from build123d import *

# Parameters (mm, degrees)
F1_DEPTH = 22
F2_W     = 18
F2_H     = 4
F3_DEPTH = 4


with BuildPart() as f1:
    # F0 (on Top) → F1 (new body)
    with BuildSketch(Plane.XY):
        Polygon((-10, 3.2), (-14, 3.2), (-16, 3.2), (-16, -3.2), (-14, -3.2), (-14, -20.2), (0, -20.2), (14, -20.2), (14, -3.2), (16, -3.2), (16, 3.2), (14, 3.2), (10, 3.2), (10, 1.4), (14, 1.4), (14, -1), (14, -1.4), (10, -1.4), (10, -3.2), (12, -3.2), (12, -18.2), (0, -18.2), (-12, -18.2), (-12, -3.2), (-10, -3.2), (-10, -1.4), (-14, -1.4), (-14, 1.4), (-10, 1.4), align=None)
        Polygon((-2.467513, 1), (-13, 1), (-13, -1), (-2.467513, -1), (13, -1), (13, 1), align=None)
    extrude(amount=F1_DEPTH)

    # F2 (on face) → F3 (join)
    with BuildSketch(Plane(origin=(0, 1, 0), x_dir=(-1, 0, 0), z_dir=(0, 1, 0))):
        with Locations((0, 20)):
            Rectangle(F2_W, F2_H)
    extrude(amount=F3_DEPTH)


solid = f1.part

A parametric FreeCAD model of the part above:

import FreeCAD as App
import Part
import Sketcher
from FreeCAD import Vector
Q = App.Units.Quantity

doc = App.newDocument("Part")
body = doc.addObject("PartDesign::Body", "Body")
body.AllowCompound = True

# Sketch on XY plane
sketch1 = body.newObject("Sketcher::SketchObject", "Sketch")
sketch1.AttachmentSupport = (doc.getObject("XY_Plane"), [""])
sketch1.MapMode = "FlatFace"
sketch1.addGeometry([
    Part.LineSegment(Vector(-10, 3.2, 0), Vector(-16, 3.2, 0)),  # 0
    Part.LineSegment(Vector(-16, 3.2, 0), Vector(-16, -3.2, 0)),  # 1
    Part.LineSegment(Vector(-16, -3.2, 0), Vector(-14, -3.2, 0)),  # 2
    Part.LineSegment(Vector(-14, -3.2, 0), Vector(-14, -20.2, 0)),  # 3
    Part.LineSegment(Vector(-14, -20.2, 0), Vector(14, -20.2, 0)),  # 4
    Part.LineSegment(Vector(14, -20.2, 0), Vector(14, -3.2, 0)),  # 5
    Part.LineSegment(Vector(14, -3.2, 0), Vector(16, -3.2, 0)),  # 6
    Part.LineSegment(Vector(16, -3.2, 0), Vector(16, 3.2, 0)),  # 7
    Part.LineSegment(Vector(16, 3.2, 0), Vector(10, 3.2, 0)),  # 8
    Part.LineSegment(Vector(10, 3.2, 0), Vector(10, 1.4, 0)),  # 9
    Part.LineSegment(Vector(10, 1.4, 0), Vector(14, 1.4, 0)),  # 10
    Part.LineSegment(Vector(14, 1.4, 0), Vector(14, -1.4, 0)),  # 11
    Part.LineSegment(Vector(14, -1.4, 0), Vector(10, -1.4, 0)),  # 12
    Part.LineSegment(Vector(10, -1.4, 0), Vector(10, -3.2, 0)),  # 13
    Part.LineSegment(Vector(10, -3.2, 0), Vector(12, -3.2, 0)),  # 14
    Part.LineSegment(Vector(12, -3.2, 0), Vector(12, -18.2, 0)),  # 15
    Part.LineSegment(Vector(12, -18.2, 0), Vector(-12, -18.2, 0)),  # 16
    Part.LineSegment(Vector(-12, -18.2, 0), Vector(-12, -3.2, 0)),  # 17
    Part.LineSegment(Vector(-12, -3.2, 0), Vector(-10, -3.2, 0)),  # 18
    Part.LineSegment(Vector(-10, -3.2, 0), Vector(-10, -1.4, 0)),  # 19
    Part.LineSegment(Vector(-10, -1.4, 0), Vector(-14, -1.4, 0)),  # 20
    Part.LineSegment(Vector(-14, -1.4, 0), Vector(-14, 1.4, 0)),  # 21
    Part.LineSegment(Vector(-14, 1.4, 0), Vector(-10, 1.4, 0)),  # 22
    Part.LineSegment(Vector(-10, 1.4, 0), Vector(-10, 3.2, 0)),  # 23
    Part.LineSegment(Vector(-13, 1, 0), Vector(-13, -1, 0)),  # 24
    Part.LineSegment(Vector(-13, -1, 0), Vector(13, -1, 0)),  # 25
    Part.LineSegment(Vector(13, -1, 0), Vector(13, 1, 0)),  # 26
    Part.LineSegment(Vector(13, 1, 0), Vector(-13, 1, 0)),  # 27
], False)
sketch1.addConstraint([
    Sketcher.Constraint("Coincident", 0, 2, 1, 1),
    Sketcher.Constraint("Coincident", 1, 2, 2, 1),
    Sketcher.Constraint("Coincident", 2, 2, 3, 1),
    Sketcher.Constraint("Coincident", 3, 2, 4, 1),
    Sketcher.Constraint("Coincident", 4, 2, 5, 1),
    Sketcher.Constraint("Coincident", 5, 2, 6, 1),
    Sketcher.Constraint("Coincident", 6, 2, 7, 1),
    Sketcher.Constraint("Coincident", 7, 2, 8, 1),
    Sketcher.Constraint("Coincident", 8, 2, 9, 1),
    Sketcher.Constraint("Coincident", 9, 2, 10, 1),
    Sketcher.Constraint("Coincident", 10, 2, 11, 1),
    Sketcher.Constraint("Coincident", 11, 2, 12, 1),
    Sketcher.Constraint("Coincident", 12, 2, 13, 1),
    Sketcher.Constraint("Coincident", 13, 2, 14, 1),
    Sketcher.Constraint("Coincident", 14, 2, 15, 1),
    Sketcher.Constraint("Coincident", 15, 2, 16, 1),
    Sketcher.Constraint("Coincident", 16, 2, 17, 1),
    Sketcher.Constraint("Coincident", 17, 2, 18, 1),
    Sketcher.Constraint("Coincident", 18, 2, 19, 1),
    Sketcher.Constraint("Coincident", 19, 2, 20, 1),
    Sketcher.Constraint("Coincident", 20, 2, 21, 1),
    Sketcher.Constraint("Coincident", 21, 2, 22, 1),
    Sketcher.Constraint("Coincident", 22, 2, 23, 1),
    Sketcher.Constraint("Coincident", 23, 2, 0, 1),
    Sketcher.Constraint("Coincident", 24, 2, 25, 1),
    Sketcher.Constraint("Coincident", 25, 2, 26, 1),
    Sketcher.Constraint("Coincident", 26, 2, 27, 1),
    Sketcher.Constraint("Coincident", 27, 2, 24, 1),
    Sketcher.Constraint("Horizontal", 0),
    Sketcher.Constraint("Vertical", 1),
    Sketcher.Constraint("Horizontal", 2),
    Sketcher.Constraint("Vertical", 3),
    Sketcher.Constraint("Horizontal", 4),
    Sketcher.Constraint("Vertical", 5),
    Sketcher.Constraint("Horizontal", 6),
    Sketcher.Constraint("Vertical", 7),
    Sketcher.Constraint("Horizontal", 8),
    Sketcher.Constraint("Vertical", 9),
    Sketcher.Constraint("Horizontal", 10),
    Sketcher.Constraint("Vertical", 11),
    Sketcher.Constraint("Horizontal", 12),
    Sketcher.Constraint("Vertical", 13),
    Sketcher.Constraint("Horizontal", 14),
    Sketcher.Constraint("Vertical", 15),
    Sketcher.Constraint("Horizontal", 16),
    Sketcher.Constraint("Vertical", 17),
    Sketcher.Constraint("Horizontal", 18),
    Sketcher.Constraint("Vertical", 19),
    Sketcher.Constraint("Horizontal", 20),
    Sketcher.Constraint("Vertical", 21),
    Sketcher.Constraint("Horizontal", 22),
    Sketcher.Constraint("Vertical", 23),
    Sketcher.Constraint("Vertical", 24),
    Sketcher.Constraint("Horizontal", 25),
    Sketcher.Constraint("Vertical", 26),
    Sketcher.Constraint("Horizontal", 27),
    Sketcher.Constraint("Symmetric", 0, 2, 6, 2, -1, 1),
    Sketcher.Constraint("Symmetric", 8, 2, 18, 2, -1, 1),
    Sketcher.Constraint("Symmetric", 10, 2, 20, 2, -1, 1),
    Sketcher.Constraint("Symmetric", 12, 2, 22, 2, -1, 1),
    Sketcher.Constraint("Symmetric", 24, 2, 26, 2, -1, 1),
    Sketcher.Constraint("Symmetric", 2, 2, 5, 2, -2),
    Sketcher.Constraint("Symmetric", 14, 2, 17, 2, -2),
    Sketcher.Constraint("Symmetric", 12, 2, 19, 2, -2),
    Sketcher.Constraint("Horizontal", 0, 2, 7, 2),
    Sketcher.Constraint("Vertical", 5, 2, 10, 2),
    Sketcher.Constraint("Equal", 6, 14),
    Sketcher.Constraint("Equal", 18, 24),
    Sketcher.Constraint("DistanceX", 0, 2, 0, 1, Q("6 mm")),
    Sketcher.Constraint("DistanceX", 2, 1, 2, 2, Q("2 mm")),
    Sketcher.Constraint("DistanceX", 4, 1, 4, 2, Q("28 mm")),
    Sketcher.Constraint("DistanceX", 25, 1, 25, 2, Q("26 mm")),
    Sketcher.Constraint("DistanceY", 3, 2, 3, 1, Q("17 mm")),
    Sketcher.Constraint("DistanceY", 15, 2, 15, 1, Q("15 mm")),
    Sketcher.Constraint("DistanceY", 1, 2, 1, 1, Q("6.4 mm")),
    Sketcher.Constraint("DistanceY", 9, 2, 9, 1, Q("1.8 mm")),
])
pad1 = body.newObject("PartDesign::Pad", "Pad")
pad1.Profile = sketch1
pad1.Length = 22

# Sketch on XZ plane
sketch2 = body.newObject("Sketcher::SketchObject", "Sketch001")
sketch2.AttachmentSupport = (doc.getObject("XZ_Plane"), [""])
sketch2.MapMode = "FlatFace"
sketch2.AttachmentOffset = App.Placement(Vector(0, 0, -1), App.Rotation())
sketch2.addGeometry([
    Part.LineSegment(Vector(9, 22, 0), Vector(9, 18, 0)),
    Part.LineSegment(Vector(9, 18, 0), Vector(-9, 18, 0)),
    Part.LineSegment(Vector(-9, 18, 0), Vector(-9, 22, 0)),
    Part.LineSegment(Vector(-9, 22, 0), Vector(9, 22, 0)),
], False)
sketch2.addConstraint([
    Sketcher.Constraint("Coincident", 0, 2, 1, 1),
    Sketcher.Constraint("Coincident", 1, 2, 2, 1),
    Sketcher.Constraint("Coincident", 2, 2, 3, 1),
    Sketcher.Constraint("Coincident", 3, 2, 0, 1),
    Sketcher.Constraint("Vertical", 0),
    Sketcher.Constraint("Horizontal", 1),
    Sketcher.Constraint("Vertical", 2),
    Sketcher.Constraint("Horizontal", 3),
    Sketcher.Constraint("DistanceX", 1, 2, 1, 1, Q("18 mm")),
    Sketcher.Constraint("DistanceY", 0, 2, 0, 1, Q("4 mm")),
    Sketcher.Constraint("DistanceX", -1, 1, 0, 2, Q("9 mm")),
    Sketcher.Constraint("DistanceY", -1, 1, 0, 2, Q("18 mm")),
])
pad2 = body.newObject("PartDesign::Pad", "Pad001")
pad2.Profile = sketch2
pad2.Length = 4
pad2.Reversed = True

doc.recompute()
